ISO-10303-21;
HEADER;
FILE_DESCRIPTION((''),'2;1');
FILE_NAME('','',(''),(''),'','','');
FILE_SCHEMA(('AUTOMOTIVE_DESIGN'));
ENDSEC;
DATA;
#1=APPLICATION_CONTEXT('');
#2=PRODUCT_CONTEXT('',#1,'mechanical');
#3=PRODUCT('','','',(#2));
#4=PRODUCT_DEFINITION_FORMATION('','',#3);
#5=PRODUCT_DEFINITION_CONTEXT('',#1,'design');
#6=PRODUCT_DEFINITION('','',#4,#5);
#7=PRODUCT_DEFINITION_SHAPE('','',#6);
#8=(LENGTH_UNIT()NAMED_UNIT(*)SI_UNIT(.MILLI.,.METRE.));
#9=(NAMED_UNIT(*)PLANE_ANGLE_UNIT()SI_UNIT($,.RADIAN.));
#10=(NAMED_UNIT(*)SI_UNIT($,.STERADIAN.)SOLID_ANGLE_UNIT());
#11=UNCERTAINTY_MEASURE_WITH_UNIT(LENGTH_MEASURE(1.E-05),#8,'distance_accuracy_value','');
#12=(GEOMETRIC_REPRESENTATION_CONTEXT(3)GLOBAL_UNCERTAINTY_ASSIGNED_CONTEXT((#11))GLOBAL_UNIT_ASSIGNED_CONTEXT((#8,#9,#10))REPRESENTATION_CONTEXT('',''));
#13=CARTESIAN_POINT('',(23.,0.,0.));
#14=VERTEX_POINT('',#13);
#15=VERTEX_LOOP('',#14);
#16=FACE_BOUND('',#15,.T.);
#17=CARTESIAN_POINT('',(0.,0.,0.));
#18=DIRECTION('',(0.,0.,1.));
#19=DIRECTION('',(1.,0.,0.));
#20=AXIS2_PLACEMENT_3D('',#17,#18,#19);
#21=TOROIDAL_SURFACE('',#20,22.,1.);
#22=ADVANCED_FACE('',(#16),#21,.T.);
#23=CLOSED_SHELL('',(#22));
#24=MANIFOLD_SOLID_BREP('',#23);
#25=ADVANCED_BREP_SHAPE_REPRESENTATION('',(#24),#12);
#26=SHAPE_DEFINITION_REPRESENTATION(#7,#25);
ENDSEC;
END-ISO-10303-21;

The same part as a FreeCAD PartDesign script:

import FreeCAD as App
import Part
import Sketcher

V = App.Vector
Q = App.Units.Quantity

doc = App.newDocument("Part")
params = doc.addObject("Spreadsheet::Sheet", "Params")
for row, (alias, value) in enumerate([
    ("sketch1_diameter", "2 mm"),
    ("revolution_angle", "360 deg"),
], start=1):
    params.set(f"A{row}", alias)
    params.set(f"B{row}", "=" + value)
    params.setAlias(f"B{row}", alias)

body = doc.addObject("PartDesign::Body", "Body")

# Sketch on YZ plane
sketch1 = doc.addObject("Sketcher::SketchObject", "Sketch")
body.addObject(sketch1)
sketch1.AttachmentSupport = (doc.YZ_Plane, [""])
sketch1.MapMode = "FlatFace"
sketch1.addGeometry(Part.Circle(V(-22, 0, 0), V(0, 0, 1), 1), False)
sketch1.addConstraint([
    Sketcher.Constraint("PointOnObject", 0, 3, -1),
    Sketcher.Constraint("Diameter", 0, Q("2 mm")),
    Sketcher.Constraint("DistanceX", 0, 3, -1, 1, Q("22 mm")),
])
sketch1.setExpression("Constraints[1]", "Params.sketch1_diameter")
revolution = doc.addObject("PartDesign::Revolution", "Revolution")
body.addObject(revolution)
revolution.Profile = sketch1
revolution.ReferenceAxis = (sketch1, ["V_Axis"])
revolution.setExpression("Angle", "Params.revolution_angle")

doc.recompute()
